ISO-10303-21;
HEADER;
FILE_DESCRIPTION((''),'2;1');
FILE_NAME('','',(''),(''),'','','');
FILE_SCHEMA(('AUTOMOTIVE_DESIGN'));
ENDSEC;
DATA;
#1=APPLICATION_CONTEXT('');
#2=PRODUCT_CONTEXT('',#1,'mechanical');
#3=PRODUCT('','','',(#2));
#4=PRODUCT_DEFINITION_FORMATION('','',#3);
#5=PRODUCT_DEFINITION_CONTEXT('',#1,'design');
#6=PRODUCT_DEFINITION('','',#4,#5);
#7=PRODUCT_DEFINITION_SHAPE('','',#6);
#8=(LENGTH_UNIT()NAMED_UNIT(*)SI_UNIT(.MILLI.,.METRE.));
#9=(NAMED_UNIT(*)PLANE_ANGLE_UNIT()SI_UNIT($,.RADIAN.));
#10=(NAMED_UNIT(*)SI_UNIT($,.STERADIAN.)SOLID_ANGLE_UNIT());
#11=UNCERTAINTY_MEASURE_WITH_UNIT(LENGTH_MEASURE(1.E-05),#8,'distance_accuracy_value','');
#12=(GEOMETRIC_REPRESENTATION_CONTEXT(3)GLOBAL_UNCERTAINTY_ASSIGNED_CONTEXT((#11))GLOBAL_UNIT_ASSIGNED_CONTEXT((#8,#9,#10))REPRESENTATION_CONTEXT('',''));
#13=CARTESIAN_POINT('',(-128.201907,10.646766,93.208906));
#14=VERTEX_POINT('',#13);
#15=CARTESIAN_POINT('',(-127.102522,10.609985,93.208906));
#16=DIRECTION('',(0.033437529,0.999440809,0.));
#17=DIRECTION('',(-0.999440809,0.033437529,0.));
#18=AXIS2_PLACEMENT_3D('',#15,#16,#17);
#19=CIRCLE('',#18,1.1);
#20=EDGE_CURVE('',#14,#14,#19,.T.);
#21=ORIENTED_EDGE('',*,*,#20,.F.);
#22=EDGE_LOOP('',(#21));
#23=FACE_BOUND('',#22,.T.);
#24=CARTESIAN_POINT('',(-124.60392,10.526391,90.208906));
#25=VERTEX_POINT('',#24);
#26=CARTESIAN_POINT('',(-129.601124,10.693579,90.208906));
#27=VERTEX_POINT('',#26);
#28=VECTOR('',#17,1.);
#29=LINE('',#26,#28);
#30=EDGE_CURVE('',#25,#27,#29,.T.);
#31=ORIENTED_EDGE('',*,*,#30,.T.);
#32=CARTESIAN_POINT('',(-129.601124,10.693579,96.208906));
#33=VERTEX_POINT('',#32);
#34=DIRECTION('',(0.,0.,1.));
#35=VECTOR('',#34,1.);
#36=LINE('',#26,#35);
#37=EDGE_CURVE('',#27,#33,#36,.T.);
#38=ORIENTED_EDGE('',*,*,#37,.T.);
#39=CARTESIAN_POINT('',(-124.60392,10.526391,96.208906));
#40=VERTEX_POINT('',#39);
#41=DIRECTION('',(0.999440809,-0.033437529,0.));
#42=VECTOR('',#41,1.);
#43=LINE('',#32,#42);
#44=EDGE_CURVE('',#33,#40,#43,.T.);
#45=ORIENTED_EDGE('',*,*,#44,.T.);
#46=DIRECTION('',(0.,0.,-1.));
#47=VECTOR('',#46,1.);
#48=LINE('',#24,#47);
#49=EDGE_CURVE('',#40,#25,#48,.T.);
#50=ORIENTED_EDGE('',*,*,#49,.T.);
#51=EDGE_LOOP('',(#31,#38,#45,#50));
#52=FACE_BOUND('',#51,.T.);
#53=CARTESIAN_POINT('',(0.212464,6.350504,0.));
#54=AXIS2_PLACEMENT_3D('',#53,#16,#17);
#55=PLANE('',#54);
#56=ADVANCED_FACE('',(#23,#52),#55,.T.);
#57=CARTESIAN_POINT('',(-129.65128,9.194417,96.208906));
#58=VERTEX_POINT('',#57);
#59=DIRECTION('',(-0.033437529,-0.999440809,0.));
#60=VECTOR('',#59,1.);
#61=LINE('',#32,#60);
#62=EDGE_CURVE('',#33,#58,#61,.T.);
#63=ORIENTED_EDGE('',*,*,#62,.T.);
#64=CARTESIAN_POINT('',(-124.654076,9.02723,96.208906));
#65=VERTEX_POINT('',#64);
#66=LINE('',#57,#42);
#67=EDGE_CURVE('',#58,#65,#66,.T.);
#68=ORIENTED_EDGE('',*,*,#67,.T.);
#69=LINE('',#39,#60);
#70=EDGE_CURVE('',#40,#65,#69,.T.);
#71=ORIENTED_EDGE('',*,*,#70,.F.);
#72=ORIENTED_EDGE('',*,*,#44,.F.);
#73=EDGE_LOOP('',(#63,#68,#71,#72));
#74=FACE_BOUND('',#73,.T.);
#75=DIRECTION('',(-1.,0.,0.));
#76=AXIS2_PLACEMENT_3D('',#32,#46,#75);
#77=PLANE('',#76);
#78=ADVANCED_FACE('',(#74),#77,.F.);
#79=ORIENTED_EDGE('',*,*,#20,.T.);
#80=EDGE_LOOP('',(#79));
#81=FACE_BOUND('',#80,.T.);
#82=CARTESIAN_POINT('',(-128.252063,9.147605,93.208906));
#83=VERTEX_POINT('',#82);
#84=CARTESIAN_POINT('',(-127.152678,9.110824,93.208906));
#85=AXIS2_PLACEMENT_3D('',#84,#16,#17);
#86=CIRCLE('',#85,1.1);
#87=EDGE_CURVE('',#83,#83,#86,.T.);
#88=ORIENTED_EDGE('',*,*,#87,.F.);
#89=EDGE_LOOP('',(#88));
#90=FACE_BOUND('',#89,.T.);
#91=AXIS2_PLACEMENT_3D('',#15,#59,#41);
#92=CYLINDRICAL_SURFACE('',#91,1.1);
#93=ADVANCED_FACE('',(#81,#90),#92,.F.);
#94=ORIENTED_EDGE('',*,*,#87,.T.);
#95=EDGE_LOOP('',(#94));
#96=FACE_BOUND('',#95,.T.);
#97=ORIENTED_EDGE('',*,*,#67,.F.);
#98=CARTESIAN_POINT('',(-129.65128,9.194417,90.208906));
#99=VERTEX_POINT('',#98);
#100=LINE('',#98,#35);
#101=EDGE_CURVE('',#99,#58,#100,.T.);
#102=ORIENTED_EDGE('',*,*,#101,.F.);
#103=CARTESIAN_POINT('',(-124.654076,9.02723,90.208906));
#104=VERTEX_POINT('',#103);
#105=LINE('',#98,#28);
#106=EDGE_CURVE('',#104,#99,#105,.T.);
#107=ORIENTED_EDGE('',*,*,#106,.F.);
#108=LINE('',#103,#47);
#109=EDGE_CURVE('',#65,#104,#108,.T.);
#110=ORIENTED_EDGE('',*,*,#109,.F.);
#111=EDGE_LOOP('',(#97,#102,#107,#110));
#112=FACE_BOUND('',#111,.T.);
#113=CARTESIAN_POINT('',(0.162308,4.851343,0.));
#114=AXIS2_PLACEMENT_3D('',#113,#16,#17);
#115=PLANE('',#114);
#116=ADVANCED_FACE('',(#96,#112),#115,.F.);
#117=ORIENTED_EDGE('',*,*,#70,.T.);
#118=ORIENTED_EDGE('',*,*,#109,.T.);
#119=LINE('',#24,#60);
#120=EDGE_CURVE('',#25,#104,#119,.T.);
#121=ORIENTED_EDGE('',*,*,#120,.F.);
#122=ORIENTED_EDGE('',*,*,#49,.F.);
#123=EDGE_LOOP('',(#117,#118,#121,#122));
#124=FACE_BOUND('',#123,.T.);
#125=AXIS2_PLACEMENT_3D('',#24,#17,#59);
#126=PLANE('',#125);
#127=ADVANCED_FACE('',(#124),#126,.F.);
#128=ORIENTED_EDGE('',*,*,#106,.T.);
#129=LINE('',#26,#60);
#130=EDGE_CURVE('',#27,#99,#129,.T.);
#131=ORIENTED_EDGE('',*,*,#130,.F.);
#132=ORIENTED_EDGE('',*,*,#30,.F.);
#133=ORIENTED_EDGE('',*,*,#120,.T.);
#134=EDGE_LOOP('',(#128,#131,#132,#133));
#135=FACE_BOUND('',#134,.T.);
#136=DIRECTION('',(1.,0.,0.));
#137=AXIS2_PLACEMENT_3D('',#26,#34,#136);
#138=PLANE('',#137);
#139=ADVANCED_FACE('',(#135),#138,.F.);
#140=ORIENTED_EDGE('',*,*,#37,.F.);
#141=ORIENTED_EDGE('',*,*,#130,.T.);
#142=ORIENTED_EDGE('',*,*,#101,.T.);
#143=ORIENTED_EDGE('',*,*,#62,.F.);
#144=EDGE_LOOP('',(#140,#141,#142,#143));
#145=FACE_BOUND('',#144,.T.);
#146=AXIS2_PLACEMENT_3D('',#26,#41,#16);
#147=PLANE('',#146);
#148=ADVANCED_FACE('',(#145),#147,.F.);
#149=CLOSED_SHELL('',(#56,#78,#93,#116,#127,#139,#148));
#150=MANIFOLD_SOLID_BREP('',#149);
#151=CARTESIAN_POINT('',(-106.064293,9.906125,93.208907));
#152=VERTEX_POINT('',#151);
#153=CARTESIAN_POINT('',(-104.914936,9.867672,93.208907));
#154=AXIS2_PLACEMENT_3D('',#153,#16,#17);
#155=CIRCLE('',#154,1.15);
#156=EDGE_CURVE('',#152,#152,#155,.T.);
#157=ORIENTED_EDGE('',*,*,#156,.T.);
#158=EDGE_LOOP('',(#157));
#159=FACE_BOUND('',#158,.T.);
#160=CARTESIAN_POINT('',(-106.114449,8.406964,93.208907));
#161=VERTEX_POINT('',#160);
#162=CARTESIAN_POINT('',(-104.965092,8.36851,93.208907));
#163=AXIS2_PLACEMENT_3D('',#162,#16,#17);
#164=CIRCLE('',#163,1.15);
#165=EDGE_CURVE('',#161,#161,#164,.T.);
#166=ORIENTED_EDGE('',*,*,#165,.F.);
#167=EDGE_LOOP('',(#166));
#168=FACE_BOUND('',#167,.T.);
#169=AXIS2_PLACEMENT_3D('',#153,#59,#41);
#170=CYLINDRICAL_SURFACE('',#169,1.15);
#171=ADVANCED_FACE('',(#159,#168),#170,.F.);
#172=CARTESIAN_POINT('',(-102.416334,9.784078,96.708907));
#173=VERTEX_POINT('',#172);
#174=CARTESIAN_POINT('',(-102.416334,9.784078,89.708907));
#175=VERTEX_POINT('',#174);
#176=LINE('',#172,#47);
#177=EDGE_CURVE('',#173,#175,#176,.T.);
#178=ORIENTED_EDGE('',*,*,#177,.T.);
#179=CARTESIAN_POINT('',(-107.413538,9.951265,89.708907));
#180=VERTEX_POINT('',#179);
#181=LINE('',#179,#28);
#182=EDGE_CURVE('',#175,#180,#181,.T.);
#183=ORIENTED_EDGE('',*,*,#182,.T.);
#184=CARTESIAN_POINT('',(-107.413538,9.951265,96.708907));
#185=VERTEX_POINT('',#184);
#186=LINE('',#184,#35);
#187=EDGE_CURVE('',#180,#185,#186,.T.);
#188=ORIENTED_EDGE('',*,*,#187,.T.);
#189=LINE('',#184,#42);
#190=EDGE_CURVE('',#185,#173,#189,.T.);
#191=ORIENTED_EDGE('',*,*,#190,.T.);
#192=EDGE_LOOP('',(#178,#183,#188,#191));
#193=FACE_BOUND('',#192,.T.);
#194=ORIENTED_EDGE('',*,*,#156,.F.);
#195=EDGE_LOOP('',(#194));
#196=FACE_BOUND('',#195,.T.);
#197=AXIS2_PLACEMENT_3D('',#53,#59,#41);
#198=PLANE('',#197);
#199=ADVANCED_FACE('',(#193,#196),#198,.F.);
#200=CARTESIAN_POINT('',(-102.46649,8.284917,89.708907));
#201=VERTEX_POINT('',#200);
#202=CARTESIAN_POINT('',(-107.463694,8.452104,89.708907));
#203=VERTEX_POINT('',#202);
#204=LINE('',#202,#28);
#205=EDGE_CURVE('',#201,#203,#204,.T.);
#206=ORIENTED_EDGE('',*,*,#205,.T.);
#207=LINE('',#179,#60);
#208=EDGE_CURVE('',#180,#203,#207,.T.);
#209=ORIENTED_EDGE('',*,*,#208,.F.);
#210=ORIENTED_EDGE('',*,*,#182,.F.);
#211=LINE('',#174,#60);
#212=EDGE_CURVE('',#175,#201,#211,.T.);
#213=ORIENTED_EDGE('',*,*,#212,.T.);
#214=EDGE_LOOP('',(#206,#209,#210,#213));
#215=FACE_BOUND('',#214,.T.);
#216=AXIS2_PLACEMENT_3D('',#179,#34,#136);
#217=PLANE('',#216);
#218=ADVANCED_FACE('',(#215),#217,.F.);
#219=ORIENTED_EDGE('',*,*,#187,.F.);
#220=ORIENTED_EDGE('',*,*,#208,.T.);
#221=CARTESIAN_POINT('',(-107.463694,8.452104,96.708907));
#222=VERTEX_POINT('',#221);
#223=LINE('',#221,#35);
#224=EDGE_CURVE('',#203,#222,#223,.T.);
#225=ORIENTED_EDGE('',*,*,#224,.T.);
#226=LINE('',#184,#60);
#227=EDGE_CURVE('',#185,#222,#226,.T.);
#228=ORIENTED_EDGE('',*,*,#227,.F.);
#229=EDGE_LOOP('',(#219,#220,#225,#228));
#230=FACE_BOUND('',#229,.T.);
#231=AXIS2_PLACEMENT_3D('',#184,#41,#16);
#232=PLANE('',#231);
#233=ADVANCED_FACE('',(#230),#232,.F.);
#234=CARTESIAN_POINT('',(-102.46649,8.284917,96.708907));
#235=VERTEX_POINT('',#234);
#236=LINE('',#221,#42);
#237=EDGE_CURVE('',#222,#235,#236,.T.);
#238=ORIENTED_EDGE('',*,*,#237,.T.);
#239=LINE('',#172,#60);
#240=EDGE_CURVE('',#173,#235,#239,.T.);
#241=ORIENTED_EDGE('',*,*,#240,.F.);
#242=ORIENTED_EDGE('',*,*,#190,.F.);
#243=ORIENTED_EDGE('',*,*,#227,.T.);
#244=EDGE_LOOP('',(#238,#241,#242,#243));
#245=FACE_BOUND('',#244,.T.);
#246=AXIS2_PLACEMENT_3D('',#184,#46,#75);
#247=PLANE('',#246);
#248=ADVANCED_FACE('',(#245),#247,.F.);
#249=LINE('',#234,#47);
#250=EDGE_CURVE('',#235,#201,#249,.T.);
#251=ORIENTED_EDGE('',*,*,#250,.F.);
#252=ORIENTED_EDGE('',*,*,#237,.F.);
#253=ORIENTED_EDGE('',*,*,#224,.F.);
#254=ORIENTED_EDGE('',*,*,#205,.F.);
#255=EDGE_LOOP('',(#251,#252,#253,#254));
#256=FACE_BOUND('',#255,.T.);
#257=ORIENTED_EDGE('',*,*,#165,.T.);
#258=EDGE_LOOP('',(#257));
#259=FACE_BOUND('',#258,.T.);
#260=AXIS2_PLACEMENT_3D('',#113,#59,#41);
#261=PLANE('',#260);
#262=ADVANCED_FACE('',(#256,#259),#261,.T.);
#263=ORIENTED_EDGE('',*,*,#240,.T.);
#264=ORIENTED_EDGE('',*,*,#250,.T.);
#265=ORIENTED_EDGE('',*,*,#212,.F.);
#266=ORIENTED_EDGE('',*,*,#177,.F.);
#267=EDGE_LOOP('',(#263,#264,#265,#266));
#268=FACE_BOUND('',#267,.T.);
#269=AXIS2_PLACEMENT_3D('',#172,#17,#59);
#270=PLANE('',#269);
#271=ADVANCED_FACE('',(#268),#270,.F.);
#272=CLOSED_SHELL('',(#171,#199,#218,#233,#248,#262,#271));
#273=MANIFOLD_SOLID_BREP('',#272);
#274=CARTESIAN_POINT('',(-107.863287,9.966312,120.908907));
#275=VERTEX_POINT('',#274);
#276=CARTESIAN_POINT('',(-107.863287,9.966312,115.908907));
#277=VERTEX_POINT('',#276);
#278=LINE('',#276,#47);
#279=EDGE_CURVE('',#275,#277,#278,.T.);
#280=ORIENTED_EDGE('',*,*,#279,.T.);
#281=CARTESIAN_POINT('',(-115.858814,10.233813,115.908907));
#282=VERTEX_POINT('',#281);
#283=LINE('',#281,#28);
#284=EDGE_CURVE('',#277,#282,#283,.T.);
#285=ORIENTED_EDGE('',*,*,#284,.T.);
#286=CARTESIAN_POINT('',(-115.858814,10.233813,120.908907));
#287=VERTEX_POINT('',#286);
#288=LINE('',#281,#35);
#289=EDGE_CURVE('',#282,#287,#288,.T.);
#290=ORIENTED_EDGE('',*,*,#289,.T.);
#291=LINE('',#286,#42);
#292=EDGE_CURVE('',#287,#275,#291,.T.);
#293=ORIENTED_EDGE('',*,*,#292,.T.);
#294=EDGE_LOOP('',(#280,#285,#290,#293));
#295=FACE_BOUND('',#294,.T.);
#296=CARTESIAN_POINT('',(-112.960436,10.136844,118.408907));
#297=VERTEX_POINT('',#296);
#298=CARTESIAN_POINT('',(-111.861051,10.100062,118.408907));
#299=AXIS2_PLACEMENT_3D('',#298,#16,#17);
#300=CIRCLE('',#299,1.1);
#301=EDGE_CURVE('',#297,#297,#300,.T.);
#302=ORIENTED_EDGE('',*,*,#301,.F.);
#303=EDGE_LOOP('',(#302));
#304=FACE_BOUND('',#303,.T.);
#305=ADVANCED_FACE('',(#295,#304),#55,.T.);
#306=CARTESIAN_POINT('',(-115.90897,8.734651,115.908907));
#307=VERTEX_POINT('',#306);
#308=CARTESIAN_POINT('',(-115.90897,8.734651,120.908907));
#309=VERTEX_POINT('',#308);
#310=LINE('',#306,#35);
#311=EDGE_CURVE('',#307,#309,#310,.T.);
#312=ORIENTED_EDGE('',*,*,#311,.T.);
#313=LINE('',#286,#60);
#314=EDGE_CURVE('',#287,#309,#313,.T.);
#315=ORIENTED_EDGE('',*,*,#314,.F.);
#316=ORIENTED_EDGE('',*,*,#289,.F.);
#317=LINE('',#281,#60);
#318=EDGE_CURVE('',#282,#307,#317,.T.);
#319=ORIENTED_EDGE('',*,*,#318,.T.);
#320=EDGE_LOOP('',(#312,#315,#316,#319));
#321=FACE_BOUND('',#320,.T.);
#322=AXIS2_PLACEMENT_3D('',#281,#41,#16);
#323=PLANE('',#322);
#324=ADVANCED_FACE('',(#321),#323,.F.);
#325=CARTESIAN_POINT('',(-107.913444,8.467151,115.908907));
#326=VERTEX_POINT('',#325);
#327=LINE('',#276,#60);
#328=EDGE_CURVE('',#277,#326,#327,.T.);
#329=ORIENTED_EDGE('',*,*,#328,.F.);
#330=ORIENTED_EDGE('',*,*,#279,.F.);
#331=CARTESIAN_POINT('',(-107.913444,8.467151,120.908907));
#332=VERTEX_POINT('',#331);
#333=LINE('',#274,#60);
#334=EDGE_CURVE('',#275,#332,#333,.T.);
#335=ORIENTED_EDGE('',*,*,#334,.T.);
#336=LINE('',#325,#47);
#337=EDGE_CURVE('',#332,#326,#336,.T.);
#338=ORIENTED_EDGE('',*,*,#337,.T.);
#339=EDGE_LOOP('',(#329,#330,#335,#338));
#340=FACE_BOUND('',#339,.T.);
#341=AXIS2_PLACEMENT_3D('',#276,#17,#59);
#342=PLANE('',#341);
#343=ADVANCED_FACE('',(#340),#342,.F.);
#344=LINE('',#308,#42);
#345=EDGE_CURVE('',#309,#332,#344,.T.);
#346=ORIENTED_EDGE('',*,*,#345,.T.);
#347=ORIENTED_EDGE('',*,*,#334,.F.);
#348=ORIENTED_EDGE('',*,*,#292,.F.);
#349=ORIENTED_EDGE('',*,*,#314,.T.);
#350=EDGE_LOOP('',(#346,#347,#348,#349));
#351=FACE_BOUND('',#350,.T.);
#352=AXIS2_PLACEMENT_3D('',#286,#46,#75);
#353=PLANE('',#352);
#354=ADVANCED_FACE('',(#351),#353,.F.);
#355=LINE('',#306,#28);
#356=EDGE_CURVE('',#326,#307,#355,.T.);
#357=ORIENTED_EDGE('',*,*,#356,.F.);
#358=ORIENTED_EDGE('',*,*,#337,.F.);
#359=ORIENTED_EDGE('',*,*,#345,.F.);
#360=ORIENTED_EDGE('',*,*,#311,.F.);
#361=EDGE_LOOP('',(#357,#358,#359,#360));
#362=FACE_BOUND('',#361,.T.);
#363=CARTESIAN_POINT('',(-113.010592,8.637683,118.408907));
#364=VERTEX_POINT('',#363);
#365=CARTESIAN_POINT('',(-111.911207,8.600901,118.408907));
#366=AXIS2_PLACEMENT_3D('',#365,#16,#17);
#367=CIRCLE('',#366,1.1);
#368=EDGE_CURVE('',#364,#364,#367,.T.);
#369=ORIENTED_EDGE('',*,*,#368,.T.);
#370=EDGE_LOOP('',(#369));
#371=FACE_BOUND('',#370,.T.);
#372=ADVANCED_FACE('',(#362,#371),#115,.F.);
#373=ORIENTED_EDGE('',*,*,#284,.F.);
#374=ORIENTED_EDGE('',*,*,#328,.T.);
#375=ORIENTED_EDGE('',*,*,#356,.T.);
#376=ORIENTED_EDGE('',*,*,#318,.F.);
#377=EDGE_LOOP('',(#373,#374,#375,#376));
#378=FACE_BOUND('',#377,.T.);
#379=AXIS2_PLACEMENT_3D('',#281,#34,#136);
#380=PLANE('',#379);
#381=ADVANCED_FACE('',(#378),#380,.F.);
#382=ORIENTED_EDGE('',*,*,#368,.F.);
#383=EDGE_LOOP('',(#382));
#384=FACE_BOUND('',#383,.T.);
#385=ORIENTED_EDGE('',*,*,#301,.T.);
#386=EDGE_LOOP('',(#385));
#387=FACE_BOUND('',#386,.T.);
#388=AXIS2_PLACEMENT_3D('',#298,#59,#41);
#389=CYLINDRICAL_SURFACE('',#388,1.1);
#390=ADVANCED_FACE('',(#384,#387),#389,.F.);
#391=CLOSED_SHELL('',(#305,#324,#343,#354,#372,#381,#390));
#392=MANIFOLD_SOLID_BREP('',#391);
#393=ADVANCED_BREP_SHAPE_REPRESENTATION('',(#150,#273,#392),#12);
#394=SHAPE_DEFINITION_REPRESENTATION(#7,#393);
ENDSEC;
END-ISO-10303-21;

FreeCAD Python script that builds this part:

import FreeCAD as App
import Part
import Sketcher
Q = App.Units.Quantity

doc = App.newDocument("Part")
body = doc.addObject("PartDesign::Body", "Body")

sketch1 = body.newObject("Sketcher::SketchObject", "Sketch")
sketch1.Placement = App.Placement(App.Vector(0.162308, 4.851343, 0), App.Rotation(App.Vector(0.999440809, -0.033437529, 0), App.Vector(0, 0, -0.999999999), App.Vector(0.033437529, 0.999440809, 0), "ZXY"))
sketch1.addGeometry([
    Part.LineSegment(App.Vector(-116.1, -115.9, 0), App.Vector(-116.1, -120.9, 0)),
    Part.LineSegment(App.Vector(-116.1, -120.9, 0), App.Vector(-108.1, -120.9, 0)),
    Part.LineSegment(App.Vector(-108.1, -120.9, 0), App.Vector(-108.1, -115.9, 0)),
    Part.LineSegment(App.Vector(-108.1, -115.9, 0), App.Vector(-116.1, -115.9, 0)),
    Part.Circle(App.Vector(-112.1, -118.4, 0), App.Vector(0, 0, 1), 1.1),
], False)
sketch1.addConstraint([
    Sketcher.Constraint("Coincident", 0, 2, 1, 1),
    Sketcher.Constraint("Coincident", 1, 2, 2, 1),
    Sketcher.Constraint("Coincident", 2, 2, 3, 1),
    Sketcher.Constraint("Coincident", 3, 2, 0, 1),
    Sketcher.Constraint("Vertical", 0),
    Sketcher.Constraint("Horizontal", 1),
    Sketcher.Constraint("Vertical", 2),
    Sketcher.Constraint("Horizontal", 3),
    Sketcher.Constraint("Diameter", 4, Q("2.2 mm")),
    Sketcher.Constraint("DistanceX", 1, 1, 1, 2, Q("8 mm")),
    Sketcher.Constraint("DistanceY", 0, 2, 0, 1, Q("5 mm")),
    Sketcher.Constraint("DistanceX", 0, 2, 4, 3, Q("4 mm")),
    Sketcher.Constraint("DistanceY", 0, 2, 4, 3, Q("2.5 mm")),
    Sketcher.Constraint("DistanceX", 4, 3, -1, 1, Q("112.13622 mm")),
    Sketcher.Constraint("DistanceY", 4, 3, -1, 1, Q("118.408907 mm")),
])
pad1 = body.newObject("PartDesign::Pad", "Pad")
pad1.Profile = sketch1
pad1.Length = 1.5
body2 = doc.addObject("PartDesign::Body", "Body001")

sketch2 = body2.newObject("Sketcher::SketchObject", "Sketch001")
sketch2.Placement = App.Placement(App.Vector(0.162308, 4.851343, 0), App.Rotation(App.Vector(0.999440809, -0.033437529, 0), App.Vector(0, 0, -0.999999999), App.Vector(0.033437529, 0.999440809, 0), "ZXY"))
sketch2.addGeometry([
    Part.LineSegment(App.Vector(-107.7, -89.7, 0), App.Vector(-107.7, -96.7, 0)),
    Part.LineSegment(App.Vector(-107.7, -96.7, 0), App.Vector(-102.7, -96.7, 0)),
    Part.LineSegment(App.Vector(-102.7, -96.7, 0), App.Vector(-102.7, -89.7, 0)),
    Part.LineSegment(App.Vector(-102.7, -89.7, 0), App.Vector(-107.7, -89.7, 0)),
    Part.Circle(App.Vector(-105.2, -93.2, 0), App.Vector(0, 0, 1), 1.1),
], False)
sketch2.addConstraint([
    Sketcher.Constraint("Coincident", 0, 2, 1, 1),
    Sketcher.Constraint("Coincident", 1, 2, 2, 1),
    Sketcher.Constraint("Coincident", 2, 2, 3, 1),
    Sketcher.Constraint("Coincident", 3, 2, 0, 1),
    Sketcher.Constraint("Vertical", 0),
    Sketcher.Constraint("Horizontal", 1),
    Sketcher.Constraint("Vertical", 2),
    Sketcher.Constraint("Horizontal", 3),
    Sketcher.Constraint("Diameter", 4, Q("2.3 mm")),
    Sketcher.Constraint("DistanceX", 1, 1, 1, 2, Q("5 mm")),
    Sketcher.Constraint("DistanceY", 0, 2, 0, 1, Q("7 mm")),
    Sketcher.Constraint("DistanceX", 0, 2, 4, 3, Q("2.5 mm")),
    Sketcher.Constraint("DistanceY", 0, 2, 4, 3, Q("3.5 mm")),
    Sketcher.Constraint("DistanceX", 4, 3, -1, 1, Q("105.186219 mm")),
    Sketcher.Constraint("DistanceY", 4, 3, -1, 1, Q("93.208907 mm")),
])
pad2 = body2.newObject("PartDesign::Pad", "Pad001")
pad2.Profile = sketch2
pad2.Length = 1.5
body3 = doc.addObject("PartDesign::Body", "Body002")

sketch3 = body3.newObject("Sketcher::SketchObject", "Sketch002")
sketch3.Placement = App.Placement(App.Vector(0.162308, 4.851343, 0), App.Rotation(App.Vector(0.999440809, -0.033437529, 0), App.Vector(0, 0, -0.999999999), App.Vector(0.033437529, 0.999440809, 0), "ZXY"))
sketch3.addGeometry([
    Part.LineSegment(App.Vector(-129.9, -90.2, 0), App.Vector(-129.9, -96.2, 0)),
    Part.LineSegment(App.Vector(-129.9, -96.2, 0), App.Vector(-124.9, -96.2, 0)),
    Part.LineSegment(App.Vector(-124.9, -96.2, 0), App.Vector(-124.9, -90.2, 0)),
    Part.LineSegment(App.Vector(-124.9, -90.2, 0), App.Vector(-129.9, -90.2, 0)),
    Part.Circle(App.Vector(-127.4, -93.2, 0), App.Vector(0, 0, 1), 1.1),
], False)
sketch3.addConstraint([
    Sketcher.Constraint("Coincident", 0, 2, 1, 1),
    Sketcher.Constraint("Coincident", 1, 2, 2, 1),
    Sketcher.Constraint("Coincident", 2, 2, 3, 1),
    Sketcher.Constraint("Coincident", 3, 2, 0, 1),
    Sketcher.Constraint("Vertical", 0),
    Sketcher.Constraint("Horizontal", 1),
    Sketcher.Constraint("Vertical", 2),
    Sketcher.Constraint("Horizontal", 3),
    Sketcher.Constraint("Diameter", 4, Q("2.2 mm")),
    Sketcher.Constraint("DistanceX", 1, 1, 1, 2, Q("5 mm")),
    Sketcher.Constraint("DistanceY", 0, 2, 0, 1, Q("6 mm")),
    Sketcher.Constraint("DistanceY", 0, 2, 4, 3, Q("3 mm")),
    Sketcher.Constraint("DistanceX", 0, 2, 4, 3, Q("2.5 mm")),
    Sketcher.Constraint("DistanceX", 4, 3, -1, 1, Q("127.386219 mm")),
    Sketcher.Constraint("DistanceY", 4, 3, -1, 1, Q("93.208906 mm")),
])
pad3 = body3.newObject("PartDesign::Pad", "Pad002")
pad3.Profile = sketch3
pad3.Length = 1.5

doc.recompute()
